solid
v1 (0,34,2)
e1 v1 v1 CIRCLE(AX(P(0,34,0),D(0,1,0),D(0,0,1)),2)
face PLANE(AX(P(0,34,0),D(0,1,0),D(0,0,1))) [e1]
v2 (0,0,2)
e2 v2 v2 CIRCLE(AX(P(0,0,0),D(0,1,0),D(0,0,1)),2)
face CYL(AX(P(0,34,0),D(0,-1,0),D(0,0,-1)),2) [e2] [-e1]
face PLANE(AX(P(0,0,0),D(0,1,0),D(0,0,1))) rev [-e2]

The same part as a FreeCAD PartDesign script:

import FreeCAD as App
import Part
import Sketcher
from FreeCAD import Vector
Q = App.Units.Quantity

doc = App.newDocument("Part")
params = doc.addObject("Spreadsheet::Sheet", "Params")
for row, (alias, value) in enumerate([
    ("sketch1_diameter", "4 mm"),
    ("pad1_length", "34 mm"),
], start=1):
    params.set(f"A{row}", alias)
    params.set(f"B{row}", "=" + value)
    params.setAlias(f"B{row}", alias)

body = doc.addObject("PartDesign::Body", "Body")

# Sketch on XZ plane
sketch1 = body.newObject("Sketcher::SketchObject", "Sketch")
sketch1.AttachmentSupport = (doc.getObject("XZ_Plane"), [""])
sketch1.MapMode = "FlatFace"
sketch1.addGeometry(Part.Circle(Vector(0, 0, 0), Vector(0, 0, 1), 2), False)
sketch1.addConstraint([
    Sketcher.Constraint("Coincident", 0, 3, -1, 1),
    Sketcher.Constraint("Diameter", 0, Q("4 mm")),
])
sketch1.setExpression("Constraints[1]", "Params.sketch1_diameter")
pad1 = body.newObject("PartDesign::Pad", "Pad")
pad1.Profile = sketch1
pad1.setExpression("Length", "Params.pad1_length")
pad1.Reversed = True

doc.recompute()
